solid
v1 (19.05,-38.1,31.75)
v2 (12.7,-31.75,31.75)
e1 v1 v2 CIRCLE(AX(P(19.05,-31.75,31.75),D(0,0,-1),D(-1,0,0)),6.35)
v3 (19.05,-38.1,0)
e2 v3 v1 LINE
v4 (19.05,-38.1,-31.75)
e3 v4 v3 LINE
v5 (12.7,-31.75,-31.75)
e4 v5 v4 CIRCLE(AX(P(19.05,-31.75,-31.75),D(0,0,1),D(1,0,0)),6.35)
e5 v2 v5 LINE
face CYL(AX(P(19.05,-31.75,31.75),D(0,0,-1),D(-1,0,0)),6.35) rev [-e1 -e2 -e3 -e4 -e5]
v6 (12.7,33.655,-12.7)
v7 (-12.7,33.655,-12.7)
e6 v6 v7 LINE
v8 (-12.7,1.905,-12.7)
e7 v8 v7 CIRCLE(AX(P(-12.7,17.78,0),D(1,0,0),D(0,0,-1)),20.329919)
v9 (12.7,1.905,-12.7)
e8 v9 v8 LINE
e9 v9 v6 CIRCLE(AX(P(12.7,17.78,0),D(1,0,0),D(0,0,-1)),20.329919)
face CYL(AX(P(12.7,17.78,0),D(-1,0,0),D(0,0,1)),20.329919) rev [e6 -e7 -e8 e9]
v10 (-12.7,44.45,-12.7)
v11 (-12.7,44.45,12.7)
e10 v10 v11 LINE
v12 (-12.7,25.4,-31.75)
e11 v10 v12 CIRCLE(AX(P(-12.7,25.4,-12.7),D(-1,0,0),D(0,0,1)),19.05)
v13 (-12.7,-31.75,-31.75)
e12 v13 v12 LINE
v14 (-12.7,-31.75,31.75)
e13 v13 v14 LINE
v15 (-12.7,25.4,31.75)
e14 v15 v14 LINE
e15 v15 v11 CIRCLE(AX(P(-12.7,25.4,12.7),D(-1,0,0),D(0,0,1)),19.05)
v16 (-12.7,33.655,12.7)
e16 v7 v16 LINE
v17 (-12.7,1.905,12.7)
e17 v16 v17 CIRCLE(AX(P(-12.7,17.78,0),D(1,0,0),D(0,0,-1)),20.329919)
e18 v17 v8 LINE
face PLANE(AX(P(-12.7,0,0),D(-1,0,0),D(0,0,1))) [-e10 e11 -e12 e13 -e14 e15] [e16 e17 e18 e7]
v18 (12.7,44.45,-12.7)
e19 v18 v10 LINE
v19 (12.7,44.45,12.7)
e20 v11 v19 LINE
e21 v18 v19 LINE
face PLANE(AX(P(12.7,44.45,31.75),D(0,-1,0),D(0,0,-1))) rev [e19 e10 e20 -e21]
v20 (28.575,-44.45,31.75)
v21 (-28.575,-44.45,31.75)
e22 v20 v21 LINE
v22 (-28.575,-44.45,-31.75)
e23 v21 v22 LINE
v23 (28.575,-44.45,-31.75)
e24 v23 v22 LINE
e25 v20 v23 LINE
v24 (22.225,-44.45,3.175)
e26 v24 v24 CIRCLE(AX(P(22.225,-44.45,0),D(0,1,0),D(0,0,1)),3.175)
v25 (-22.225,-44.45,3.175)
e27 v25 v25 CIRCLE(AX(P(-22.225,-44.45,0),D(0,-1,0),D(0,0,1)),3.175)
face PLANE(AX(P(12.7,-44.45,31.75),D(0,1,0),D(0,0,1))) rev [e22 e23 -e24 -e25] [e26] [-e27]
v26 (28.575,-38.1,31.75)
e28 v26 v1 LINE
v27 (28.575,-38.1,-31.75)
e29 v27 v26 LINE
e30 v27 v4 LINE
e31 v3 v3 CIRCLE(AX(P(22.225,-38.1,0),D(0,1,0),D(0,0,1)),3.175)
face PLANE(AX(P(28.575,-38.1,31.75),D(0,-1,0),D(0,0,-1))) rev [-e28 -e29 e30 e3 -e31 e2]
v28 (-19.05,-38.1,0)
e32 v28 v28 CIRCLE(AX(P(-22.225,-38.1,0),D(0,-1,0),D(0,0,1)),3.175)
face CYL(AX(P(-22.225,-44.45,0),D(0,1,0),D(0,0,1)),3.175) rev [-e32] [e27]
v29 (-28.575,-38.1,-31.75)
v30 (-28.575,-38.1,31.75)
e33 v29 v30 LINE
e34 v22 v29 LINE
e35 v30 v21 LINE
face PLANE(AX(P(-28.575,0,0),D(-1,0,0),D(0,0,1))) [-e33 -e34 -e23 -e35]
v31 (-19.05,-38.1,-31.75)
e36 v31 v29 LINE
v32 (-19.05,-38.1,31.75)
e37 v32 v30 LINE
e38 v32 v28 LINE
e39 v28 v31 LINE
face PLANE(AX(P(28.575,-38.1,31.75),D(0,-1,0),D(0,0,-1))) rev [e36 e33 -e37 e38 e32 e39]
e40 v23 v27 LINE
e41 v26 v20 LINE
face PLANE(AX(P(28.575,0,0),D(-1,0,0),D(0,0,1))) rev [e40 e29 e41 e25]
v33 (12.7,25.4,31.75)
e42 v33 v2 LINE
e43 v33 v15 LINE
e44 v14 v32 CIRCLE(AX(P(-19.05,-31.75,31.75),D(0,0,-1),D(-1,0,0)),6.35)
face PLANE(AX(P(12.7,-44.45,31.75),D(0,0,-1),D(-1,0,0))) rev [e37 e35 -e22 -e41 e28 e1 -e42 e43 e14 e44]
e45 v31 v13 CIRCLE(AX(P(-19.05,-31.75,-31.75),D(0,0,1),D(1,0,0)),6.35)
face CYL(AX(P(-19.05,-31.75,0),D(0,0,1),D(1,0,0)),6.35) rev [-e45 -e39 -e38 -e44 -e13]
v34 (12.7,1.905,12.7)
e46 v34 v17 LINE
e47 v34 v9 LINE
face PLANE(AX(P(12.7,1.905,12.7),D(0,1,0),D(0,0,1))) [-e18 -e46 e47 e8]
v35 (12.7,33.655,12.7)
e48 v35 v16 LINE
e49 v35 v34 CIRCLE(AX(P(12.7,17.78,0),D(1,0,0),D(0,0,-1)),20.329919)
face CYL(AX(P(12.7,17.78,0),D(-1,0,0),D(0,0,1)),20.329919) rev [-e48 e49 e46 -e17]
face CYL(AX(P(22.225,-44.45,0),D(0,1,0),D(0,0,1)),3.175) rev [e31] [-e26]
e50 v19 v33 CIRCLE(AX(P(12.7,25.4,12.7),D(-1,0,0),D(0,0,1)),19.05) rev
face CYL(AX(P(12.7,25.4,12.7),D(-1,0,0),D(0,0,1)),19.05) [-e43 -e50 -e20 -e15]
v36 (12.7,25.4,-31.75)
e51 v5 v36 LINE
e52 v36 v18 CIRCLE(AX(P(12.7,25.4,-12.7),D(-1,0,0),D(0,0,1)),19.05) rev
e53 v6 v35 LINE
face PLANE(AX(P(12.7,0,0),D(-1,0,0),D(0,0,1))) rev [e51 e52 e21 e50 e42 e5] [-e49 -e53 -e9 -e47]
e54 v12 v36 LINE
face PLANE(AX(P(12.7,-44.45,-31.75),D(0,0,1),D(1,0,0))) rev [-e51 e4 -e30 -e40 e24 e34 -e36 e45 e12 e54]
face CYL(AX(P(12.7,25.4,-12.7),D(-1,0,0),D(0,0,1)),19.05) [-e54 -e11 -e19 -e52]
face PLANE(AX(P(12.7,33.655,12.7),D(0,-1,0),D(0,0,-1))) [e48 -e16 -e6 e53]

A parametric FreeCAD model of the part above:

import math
import FreeCAD as App
import Part
import Sketcher
Q = App.Units.Quantity


def edges_at(feature, points):
    """Names of the edges that pass closest to the given points."""
    edges = feature.Shape.Edges
    near = lambda p: min(range(len(edges)), key=lambda i: edges[i].distToShape(Part.Vertex(*p))[0])
    return sorted({f"Edge{near(p) + 1}" for p in points})

doc = App.newDocument("Part")
params = doc.addObject("Spreadsheet::Sheet", "Params")
for row, (alias, value) in enumerate([
    ("sketch1_height", "1 in"),
    ("sketch1_width", "3.5 in"),
    ("sketch1_height2", "2.5 in"),
    ("pad1_length", "1 in"),
    ("sketch2_height", "2.5 in"),
    ("sketch2_width", "0.25 in"),
    ("pad2_length", "2.25 in"),
    ("fillet_radius", "0.25 in"),
    ("sketch3_diameter", "0.25 in"),
    ("fillet2_radius", "0.75 in"),
], start=1):
    params.set(f"A{row}", alias)
    params.set(f"B{row}", "=" + value)
    params.setAlias(f"B{row}", alias)

body = doc.addObject("PartDesign::Body", "Body")

# Sketch on YZ plane
sketch1 = doc.addObject("Sketcher::SketchObject", "Sketch")
body.addObject(sketch1)
sketch1.AttachmentSupport = (doc.YZ_Plane, [""])
sketch1.MapMode = "FlatFace"
sketch1.addGeometry([
    Part.LineSegment(App.Vector(44, 32, 0), App.Vector(-44, 32, 0)),  # 0
    Part.LineSegment(App.Vector(-44, 32, 0), App.Vector(-44, -32, 0)),  # 1
    Part.LineSegment(App.Vector(-44, -32, 0), App.Vector(44, -32, 0)),  # 2
    Part.LineSegment(App.Vector(44, -32, 0), App.Vector(44, 32, 0)),  # 3
    Part.LineSegment(App.Vector(2, -13, 0), App.Vector(2, 13, 0)),  # 4
    Part.ArcOfCircle(Part.Circle(App.Vector(18, 0, 0), App.Vector(0, 0, 1), 20), math.radians(39), math.radians(141)),  # 5
    Part.LineSegment(App.Vector(34, 13, 0), App.Vector(34, -13, 0)),  # 6
    Part.ArcOfCircle(Part.Circle(App.Vector(18, 0, 0), App.Vector(0, 0, 1), 20), math.radians(-141), math.radians(-39)),  # 7
], False)
sketch1.addConstraint([
    Sketcher.Constraint("Coincident", 0, 2, 1, 1),
    Sketcher.Constraint("Coincident", 1, 2, 2, 1),
    Sketcher.Constraint("Coincident", 2, 2, 3, 1),
    Sketcher.Constraint("Coincident", 3, 2, 0, 1),
    Sketcher.Constraint("Coincident", 4, 2, 5, 2),
    Sketcher.Constraint("Coincident", 5, 1, 6, 1),
    Sketcher.Constraint("Coincident", 6, 2, 7, 2),
    Sketcher.Constraint("Coincident", 7, 1, 4, 1),
    Sketcher.Constraint("Horizontal", 0),
    Sketcher.Constraint("Vertical", 1),
    Sketcher.Constraint("Horizontal", 2),
    Sketcher.Constraint("Vertical", 3),
    Sketcher.Constraint("Vertical", 4),
    Sketcher.Constraint("Vertical", 6),
    Sketcher.Constraint("Coincident", 7, 3, 5, 3),
    Sketcher.Constraint("Equal", 5, 7),
    Sketcher.Constraint("Symmetric", 0, 2, 2, 2, -1, 1),
    Sketcher.Constraint("PointOnObject", 5, 3, -1),
    Sketcher.Constraint("Horizontal", 4, 2, 5, 1),
    Sketcher.Constraint("DistanceY", 4, 1, 4, 2, Q("1 in")),
    Sketcher.Constraint("DistanceX", 0, 2, 0, 1, Q("3.5 in")),
    Sketcher.Constraint("DistanceY", 1, 2, 1, 1, Q("2.5 in")),
    Sketcher.Constraint("DistanceX", -1, 1, 5, 3, Q("0.7 in")),
    Sketcher.Constraint("DistanceX", 4, 2, 5, 1, Q("1.25 in")),
])
sketch1.setExpression("Constraints[19]", "Params.sketch1_height")
sketch1.setExpression("Constraints[20]", "Params.sketch1_width")
sketch1.setExpression("Constraints[21]", "Params.sketch1_height2")
pad1 = doc.addObject("PartDesign::Pad", "Pad")
body.addObject(pad1)
pad1.Profile = sketch1
pad1.setExpression("Length", "Params.pad1_length")
pad1.Midplane = True

# Sketch on YZ plane
sketch2 = doc.addObject("Sketcher::SketchObject", "Sketch001")
body.addObject(sketch2)
sketch2.AttachmentSupport = (doc.YZ_Plane, [""])
sketch2.MapMode = "FlatFace"
sketch2.addGeometry([
    Part.LineSegment(App.Vector(-38, 32, 0), App.Vector(-44, 32, 0)),
    Part.LineSegment(App.Vector(-44, 32, 0), App.Vector(-44, -32, 0)),
    Part.LineSegment(App.Vector(-44, -32, 0), App.Vector(-38, -32, 0)),
    Part.LineSegment(App.Vector(-38, -32, 0), App.Vector(-38, 32, 0)),
], False)
sketch2.addConstraint([
    Sketcher.Constraint("Coincident", 0, 2, 1, 1),
    Sketcher.Constraint("Coincident", 1, 2, 2, 1),
    Sketcher.Constraint("Coincident", 2, 2, 3, 1),
    Sketcher.Constraint("Coincident", 3, 2, 0, 1),
    Sketcher.Constraint("Horizontal", 0),
    Sketcher.Constraint("Vertical", 1),
    Sketcher.Constraint("Horizontal", 2),
    Sketcher.Constraint("Vertical", 3),
    Sketcher.Constraint("DistanceY", 1, 2, 1, 1, Q("2.5 in")),
    Sketcher.Constraint("DistanceX", 0, 2, 0, 1, Q("0.25 in")),
    Sketcher.Constraint("DistanceX", 2, 2, -1, 1, Q("1.5 in")),
    Sketcher.Constraint("DistanceY", -1, 1, 0, 2, Q("1.25 in")),
])
sketch2.setExpression("Constraints[8]", "Params.sketch2_height")
sketch2.setExpression("Constraints[9]", "Params.sketch2_width")
pad2 = doc.addObject("PartDesign::Pad", "Pad001")
body.addObject(pad2)
pad2.Profile = sketch2
pad2.setExpression("Length", "Params.pad2_length")
pad2.Midplane = True
doc.recompute()

fillet = doc.addObject("PartDesign::Fillet", "Fillet")
body.addObject(fillet)
fillet.Base = (pad2, edges_at(pad2, [(12.7, -38.1, 0), (-12.7, -38.1, 0)]))
fillet.setExpression("Radius", "Params.fillet_radius")

# Sketch on XZ plane
sketch3 = doc.addObject("Sketcher::SketchObject", "Sketch002")
body.addObject(sketch3)
sketch3.AttachmentSupport = (doc.XZ_Plane, [""])
sketch3.MapMode = "FlatFace"
sketch3.AttachmentOffset = App.Placement(App.Vector(0, 0, 1.5 * 25.4), App.Rotation())
sketch3.addGeometry(Part.Circle(App.Vector(22.2, 0, 0), App.Vector(0, 0, 1), 3.2), False)
sketch3.addConstraint([
    Sketcher.Constraint("PointOnObject", 0, 3, -1),
    Sketcher.Constraint("Diameter", 0, Q("0.25 in")),
    Sketcher.Constraint("DistanceX", -1, 1, 0, 3, Q("0.875 in")),
])
sketch3.setExpression("Constraints[1]", "Params.sketch3_diameter")
pocket1 = doc.addObject("PartDesign::Pocket", "Pocket")
body.addObject(pocket1)
pocket1.Profile = sketch3
pocket1.Type = "ThroughAll"
pocket1.Reversed = True
doc.recompute()

mirrored = doc.addObject("PartDesign::Mirrored", "Mirrored")
body.addObject(mirrored)
mirrored.Originals = [pocket1]
mirrored.MirrorPlane = (doc.YZ_Plane, [""])
body.Tip = mirrored
doc.recompute()

fillet2 = doc.addObject("PartDesign::Fillet", "Fillet001")
body.addObject(fillet2)
fillet2.Base = (mirrored, edges_at(mirrored, [(0, 44.45, 31.75), (0, 44.45, -31.75)]))
fillet2.setExpression("Radius", "Params.fillet2_radius")

doc.recompute()
